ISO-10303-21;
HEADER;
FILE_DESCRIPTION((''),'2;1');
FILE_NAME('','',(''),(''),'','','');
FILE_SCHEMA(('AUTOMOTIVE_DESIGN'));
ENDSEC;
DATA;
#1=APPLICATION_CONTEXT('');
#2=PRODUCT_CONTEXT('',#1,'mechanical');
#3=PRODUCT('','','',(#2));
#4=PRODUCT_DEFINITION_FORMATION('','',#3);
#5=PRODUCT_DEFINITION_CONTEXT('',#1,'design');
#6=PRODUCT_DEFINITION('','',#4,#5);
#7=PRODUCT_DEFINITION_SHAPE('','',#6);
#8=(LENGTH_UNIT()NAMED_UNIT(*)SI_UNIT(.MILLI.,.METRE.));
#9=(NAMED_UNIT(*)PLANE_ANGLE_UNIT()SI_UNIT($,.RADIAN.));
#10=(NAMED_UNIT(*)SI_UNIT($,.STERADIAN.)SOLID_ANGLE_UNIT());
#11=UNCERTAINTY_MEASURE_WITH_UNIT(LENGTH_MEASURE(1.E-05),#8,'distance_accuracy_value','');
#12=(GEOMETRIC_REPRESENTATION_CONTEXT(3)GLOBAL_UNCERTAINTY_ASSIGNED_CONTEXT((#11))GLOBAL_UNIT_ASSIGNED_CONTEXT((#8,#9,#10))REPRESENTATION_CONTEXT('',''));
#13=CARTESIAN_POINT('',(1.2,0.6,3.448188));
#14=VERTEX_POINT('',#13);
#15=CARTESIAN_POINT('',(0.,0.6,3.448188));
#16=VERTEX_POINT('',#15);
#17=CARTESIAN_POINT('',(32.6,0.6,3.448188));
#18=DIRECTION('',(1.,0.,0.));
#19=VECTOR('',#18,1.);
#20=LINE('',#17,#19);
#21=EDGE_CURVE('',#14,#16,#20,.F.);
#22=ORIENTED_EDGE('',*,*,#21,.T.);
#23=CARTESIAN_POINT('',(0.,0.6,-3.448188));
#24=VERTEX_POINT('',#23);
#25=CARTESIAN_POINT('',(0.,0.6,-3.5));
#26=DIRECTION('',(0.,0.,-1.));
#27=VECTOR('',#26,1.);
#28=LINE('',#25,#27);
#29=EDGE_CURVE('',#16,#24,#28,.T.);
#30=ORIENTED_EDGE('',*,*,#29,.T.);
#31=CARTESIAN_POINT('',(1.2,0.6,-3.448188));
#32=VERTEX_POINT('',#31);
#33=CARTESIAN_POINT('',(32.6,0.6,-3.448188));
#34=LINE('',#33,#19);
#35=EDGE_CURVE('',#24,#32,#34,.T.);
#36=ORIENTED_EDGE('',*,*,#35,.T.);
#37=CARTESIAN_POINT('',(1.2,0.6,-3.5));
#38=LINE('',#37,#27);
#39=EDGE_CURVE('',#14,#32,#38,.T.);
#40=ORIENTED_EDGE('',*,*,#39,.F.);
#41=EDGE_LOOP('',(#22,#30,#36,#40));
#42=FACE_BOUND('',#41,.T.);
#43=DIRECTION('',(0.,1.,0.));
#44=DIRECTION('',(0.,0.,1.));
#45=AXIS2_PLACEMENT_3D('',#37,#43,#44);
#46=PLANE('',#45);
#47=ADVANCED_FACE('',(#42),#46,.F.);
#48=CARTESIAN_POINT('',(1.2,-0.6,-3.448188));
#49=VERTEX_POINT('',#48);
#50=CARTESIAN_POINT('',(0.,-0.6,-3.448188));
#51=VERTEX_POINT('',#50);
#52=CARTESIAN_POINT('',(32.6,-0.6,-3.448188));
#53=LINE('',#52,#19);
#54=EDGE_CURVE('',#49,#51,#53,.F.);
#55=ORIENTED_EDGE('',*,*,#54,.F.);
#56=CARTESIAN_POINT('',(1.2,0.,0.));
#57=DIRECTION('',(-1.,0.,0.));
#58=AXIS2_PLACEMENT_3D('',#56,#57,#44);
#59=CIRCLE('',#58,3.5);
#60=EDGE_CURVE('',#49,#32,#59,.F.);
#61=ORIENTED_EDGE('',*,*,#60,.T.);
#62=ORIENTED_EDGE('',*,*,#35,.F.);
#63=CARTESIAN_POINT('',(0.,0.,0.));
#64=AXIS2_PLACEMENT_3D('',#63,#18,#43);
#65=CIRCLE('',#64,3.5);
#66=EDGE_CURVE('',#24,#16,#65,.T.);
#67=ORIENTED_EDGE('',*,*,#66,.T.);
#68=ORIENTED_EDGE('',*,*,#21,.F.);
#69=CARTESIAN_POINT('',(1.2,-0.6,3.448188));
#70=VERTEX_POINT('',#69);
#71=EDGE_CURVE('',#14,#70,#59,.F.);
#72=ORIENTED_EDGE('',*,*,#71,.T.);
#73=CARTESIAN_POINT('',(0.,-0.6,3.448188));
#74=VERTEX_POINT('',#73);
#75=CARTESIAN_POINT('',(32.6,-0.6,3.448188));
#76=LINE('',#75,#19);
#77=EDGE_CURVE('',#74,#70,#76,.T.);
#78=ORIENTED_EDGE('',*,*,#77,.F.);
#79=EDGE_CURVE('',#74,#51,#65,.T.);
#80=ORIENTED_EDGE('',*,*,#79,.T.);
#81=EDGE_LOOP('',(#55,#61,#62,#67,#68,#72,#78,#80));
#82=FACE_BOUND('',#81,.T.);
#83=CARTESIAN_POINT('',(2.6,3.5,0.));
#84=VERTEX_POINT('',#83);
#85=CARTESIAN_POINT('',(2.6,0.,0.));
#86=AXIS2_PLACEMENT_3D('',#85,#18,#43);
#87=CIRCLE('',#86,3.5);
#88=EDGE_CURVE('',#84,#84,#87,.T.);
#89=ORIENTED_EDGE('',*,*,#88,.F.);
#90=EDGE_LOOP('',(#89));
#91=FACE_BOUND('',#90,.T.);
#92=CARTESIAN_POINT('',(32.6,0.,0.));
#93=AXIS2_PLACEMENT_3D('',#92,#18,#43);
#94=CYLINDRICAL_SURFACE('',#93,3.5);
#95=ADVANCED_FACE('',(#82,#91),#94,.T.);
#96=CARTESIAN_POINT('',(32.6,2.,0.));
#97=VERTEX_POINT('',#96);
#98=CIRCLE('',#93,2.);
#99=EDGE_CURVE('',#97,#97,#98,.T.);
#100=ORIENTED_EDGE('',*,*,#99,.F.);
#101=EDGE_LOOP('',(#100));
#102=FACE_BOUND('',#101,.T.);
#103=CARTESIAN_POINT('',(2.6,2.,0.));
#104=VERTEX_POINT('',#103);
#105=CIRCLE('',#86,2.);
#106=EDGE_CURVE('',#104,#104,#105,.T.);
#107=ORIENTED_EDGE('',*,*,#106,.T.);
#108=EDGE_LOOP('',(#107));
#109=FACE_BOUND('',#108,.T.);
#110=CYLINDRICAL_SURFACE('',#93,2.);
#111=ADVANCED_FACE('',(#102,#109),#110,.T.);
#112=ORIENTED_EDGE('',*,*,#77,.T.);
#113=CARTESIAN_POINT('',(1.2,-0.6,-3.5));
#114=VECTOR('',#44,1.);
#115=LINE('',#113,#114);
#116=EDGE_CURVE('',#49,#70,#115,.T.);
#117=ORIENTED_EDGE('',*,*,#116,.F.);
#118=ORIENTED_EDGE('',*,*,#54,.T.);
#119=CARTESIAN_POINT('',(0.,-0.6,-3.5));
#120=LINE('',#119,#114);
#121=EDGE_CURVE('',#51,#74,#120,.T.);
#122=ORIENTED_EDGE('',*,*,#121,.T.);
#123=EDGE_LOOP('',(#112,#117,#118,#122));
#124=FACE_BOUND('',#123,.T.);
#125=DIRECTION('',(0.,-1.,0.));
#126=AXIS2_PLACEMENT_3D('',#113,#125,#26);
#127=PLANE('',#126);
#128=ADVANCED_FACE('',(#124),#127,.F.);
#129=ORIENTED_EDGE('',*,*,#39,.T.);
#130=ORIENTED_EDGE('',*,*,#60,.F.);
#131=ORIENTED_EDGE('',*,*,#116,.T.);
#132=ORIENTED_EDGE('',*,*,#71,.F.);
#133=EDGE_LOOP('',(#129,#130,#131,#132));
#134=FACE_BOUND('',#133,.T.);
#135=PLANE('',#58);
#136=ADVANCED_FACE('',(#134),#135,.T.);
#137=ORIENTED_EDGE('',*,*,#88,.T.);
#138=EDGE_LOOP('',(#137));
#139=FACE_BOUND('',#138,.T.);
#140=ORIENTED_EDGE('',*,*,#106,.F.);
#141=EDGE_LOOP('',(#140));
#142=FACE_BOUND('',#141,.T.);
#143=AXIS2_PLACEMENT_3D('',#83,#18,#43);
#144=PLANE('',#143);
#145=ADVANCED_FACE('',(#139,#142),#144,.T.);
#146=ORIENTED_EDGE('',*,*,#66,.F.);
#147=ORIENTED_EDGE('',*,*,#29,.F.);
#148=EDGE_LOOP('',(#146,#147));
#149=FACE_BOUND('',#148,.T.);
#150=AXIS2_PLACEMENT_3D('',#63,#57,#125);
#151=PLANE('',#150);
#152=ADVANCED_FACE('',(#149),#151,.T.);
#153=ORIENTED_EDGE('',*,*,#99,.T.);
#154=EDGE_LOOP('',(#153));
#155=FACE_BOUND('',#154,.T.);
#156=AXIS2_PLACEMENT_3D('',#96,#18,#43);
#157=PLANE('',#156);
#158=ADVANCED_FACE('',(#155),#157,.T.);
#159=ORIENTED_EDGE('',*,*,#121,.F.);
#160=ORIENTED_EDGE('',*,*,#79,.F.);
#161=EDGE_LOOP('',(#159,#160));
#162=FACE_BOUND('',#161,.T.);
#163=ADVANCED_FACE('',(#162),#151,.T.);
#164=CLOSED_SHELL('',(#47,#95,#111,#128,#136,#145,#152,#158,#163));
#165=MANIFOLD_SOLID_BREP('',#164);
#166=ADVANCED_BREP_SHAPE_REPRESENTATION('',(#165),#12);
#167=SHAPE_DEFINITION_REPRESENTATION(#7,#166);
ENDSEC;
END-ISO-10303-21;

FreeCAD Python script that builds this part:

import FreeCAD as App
import Part
import Sketcher
Q = App.Units.Quantity

doc = App.newDocument("Part")
body = doc.addObject("PartDesign::Body", "Body")

# Sketch on XY plane
sketch1 = body.newObject("Sketcher::SketchObject", "Sketch")
sketch1.AttachmentSupport = (doc.getObject("XY_Plane"), [""])
sketch1.MapMode = "FlatFace"
sketch1.addGeometry(Part.LineSegment(App.Vector(0, 3.5, 0), App.Vector(0, 0, 0)), False)
sketch1.addGeometry(Part.LineSegment(App.Vector(0, 0, 0), App.Vector(32.6, 0, 0)), False)
sketch1.addGeometry(Part.LineSegment(App.Vector(32.6, 0, 0), App.Vector(32.6, 2, 0)), False)
sketch1.addGeometry(Part.LineSegment(App.Vector(32.6, 2, 0), App.Vector(2.6, 2, 0)), False)
sketch1.addGeometry(Part.LineSegment(App.Vector(2.6, 2, 0), App.Vector(2.6, 3.5, 0)), False)
sketch1.addGeometry(Part.LineSegment(App.Vector(2.6, 3.5, 0), App.Vector(0, 3.5, 0)), False)
sketch1.addConstraint(Sketcher.Constraint("Coincident", 0, 2, 1, 1))
sketch1.addConstraint(Sketcher.Constraint("Coincident", 1, 2, 2, 1))
sketch1.addConstraint(Sketcher.Constraint("Coincident", 2, 2, 3, 1))
sketch1.addConstraint(Sketcher.Constraint("Coincident", 3, 2, 4, 1))
sketch1.addConstraint(Sketcher.Constraint("Coincident", 4, 2, 5, 1))
sketch1.addConstraint(Sketcher.Constraint("Coincident", 5, 2, 0, 1))
sketch1.addConstraint(Sketcher.Constraint("Vertical", 0))
sketch1.addConstraint(Sketcher.Constraint("Horizontal", 1))
sketch1.addConstraint(Sketcher.Constraint("Vertical", 2))
sketch1.addConstraint(Sketcher.Constraint("Horizontal", 3))
sketch1.addConstraint(Sketcher.Constraint("Vertical", 4))
sketch1.addConstraint(Sketcher.Constraint("Horizontal", 5))
sketch1.addConstraint(Sketcher.Constraint("Coincident", 0, 2, -1, 1))
sketch1.addConstraint(Sketcher.Constraint("DistanceX", 3, 2, 3, 1, Q("30 mm")))
sketch1.addConstraint(Sketcher.Constraint("DistanceY", 2, 1, 2, 2, Q("2 mm")))
sketch1.addConstraint(Sketcher.Constraint("DistanceX", 1, 1, 1, 2, Q("32.6 mm")))
sketch1.addConstraint(Sketcher.Constraint("DistanceY", 0, 2, 0, 1, Q("3.5 mm")))
revolution = body.newObject("PartDesign::Revolution", "Revolution")
revolution.Profile = sketch1
revolution.ReferenceAxis = (sketch1, ["H_Axis"])
revolution.Angle = 360

# Sketch on YZ plane
sketch2 = body.newObject("Sketcher::SketchObject", "Sketch001")
sketch2.AttachmentSupport = (doc.getObject("YZ_Plane"), [""])
sketch2.MapMode = "FlatFace"
sketch2.addGeometry(Part.LineSegment(App.Vector(0.6, -3.5, 0), App.Vector(-0.6, -3.5, 0)), False)
sketch2.addGeometry(Part.LineSegment(App.Vector(-0.6, -3.5, 0), App.Vector(-0.6, 3.5, 0)), False)
sketch2.addGeometry(Part.LineSegment(App.Vector(-0.6, 3.5, 0), App.Vector(0.6, 3.5, 0)), False)
sketch2.addGeometry(Part.LineSegment(App.Vector(0.6, 3.5, 0), App.Vector(0.6, -3.5, 0)), False)
sketch2.addConstraint(Sketcher.Constraint("Coincident", 0, 2, 1, 1))
sketch2.addConstraint(Sketcher.Constraint("Coincident", 1, 2, 2, 1))
sketch2.addConstraint(Sketcher.Constraint("Coincident", 2, 2, 3, 1))
sketch2.addConstraint(Sketcher.Constraint("Coincident", 3, 2, 0, 1))
sketch2.addConstraint(Sketcher.Constraint("Horizontal", 0))
sketch2.addConstraint(Sketcher.Constraint("Vertical", 1))
sketch2.addConstraint(Sketcher.Constraint("Horizontal", 2))
sketch2.addConstraint(Sketcher.Constraint("Vertical", 3))
sketch2.addConstraint(Sketcher.Constraint("Symmetric", 0, 2, 2, 2, -1, 1))
sketch2.addConstraint(Sketcher.Constraint("DistanceY", 1, 1, 1, 2, Q("7 mm")))
sketch2.addConstraint(Sketcher.Constraint("DistanceX", 0, 2, 0, 1, Q("1.2 mm")))
pocket1 = body.newObject("PartDesign::Pocket", "Pocket")
pocket1.Profile = sketch2
pocket1.Length = 1.2
pocket1.Reversed = True

doc.recompute()
